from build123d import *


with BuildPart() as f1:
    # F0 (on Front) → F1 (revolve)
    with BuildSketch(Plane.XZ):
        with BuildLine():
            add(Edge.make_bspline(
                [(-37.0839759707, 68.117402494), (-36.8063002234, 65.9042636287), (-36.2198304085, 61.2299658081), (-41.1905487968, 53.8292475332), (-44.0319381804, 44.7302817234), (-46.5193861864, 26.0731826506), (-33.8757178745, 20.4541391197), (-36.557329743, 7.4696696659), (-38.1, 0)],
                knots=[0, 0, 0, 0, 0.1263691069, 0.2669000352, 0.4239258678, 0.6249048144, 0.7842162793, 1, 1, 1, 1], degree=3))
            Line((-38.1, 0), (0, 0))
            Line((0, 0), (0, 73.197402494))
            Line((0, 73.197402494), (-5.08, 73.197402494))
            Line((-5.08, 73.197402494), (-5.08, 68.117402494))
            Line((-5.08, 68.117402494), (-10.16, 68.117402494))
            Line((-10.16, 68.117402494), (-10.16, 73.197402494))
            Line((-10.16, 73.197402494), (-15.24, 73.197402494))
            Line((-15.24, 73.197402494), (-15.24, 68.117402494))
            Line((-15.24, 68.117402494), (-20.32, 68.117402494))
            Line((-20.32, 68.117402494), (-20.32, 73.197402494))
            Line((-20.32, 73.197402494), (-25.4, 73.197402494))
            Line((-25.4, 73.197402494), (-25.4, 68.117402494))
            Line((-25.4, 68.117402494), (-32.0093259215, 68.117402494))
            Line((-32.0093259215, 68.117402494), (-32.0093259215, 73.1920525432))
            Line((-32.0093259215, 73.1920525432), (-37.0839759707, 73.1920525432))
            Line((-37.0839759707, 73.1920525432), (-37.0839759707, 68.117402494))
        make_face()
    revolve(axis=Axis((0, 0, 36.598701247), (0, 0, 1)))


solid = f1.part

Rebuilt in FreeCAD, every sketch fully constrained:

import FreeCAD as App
import Part
import Sketcher
from FreeCAD import Vector
Q = App.Units.Quantity

doc = App.newDocument("Part")
body = doc.addObject("PartDesign::Body", "Body")

sketch1 = body.newObject("Sketcher::SketchObject", "Sketch")
sketch1.AttachmentSupport = (doc.getObject("XZ_Plane"), [""])
sketch1.MapMode = "FlatFace"
sketch1.addGeometry([
    Part.BSplineCurve([Vector(-37.083976, 68.117402, 0), Vector(-36.8063, 65.904264, 0), Vector(-36.21983, 61.229966, 0), Vector(-41.190549, 53.829248, 0), Vector(-44.031938, 44.730282, 0), Vector(-46.519386, 26.073183, 0), Vector(-33.875718, 20.454139, 0), Vector(-36.55733, 7.46967, 0), Vector(-38.1, 0, 0)], [4, 1, 1, 1, 1, 1, 4], [0, 0.126369107, 0.266900035, 0.423925868, 0.624904814, 0.784216279, 1], False, 3, [1, 1, 1, 1, 1, 1, 1, 1, 1], False),
    Part.LineSegment(Vector(-38.1, 0, 0), Vector(0, 0, 0)),
    Part.LineSegment(Vector(0, 0, 0), Vector(0, 73.197402, 0)),
    Part.LineSegment(Vector(0, 73.197402, 0), Vector(-5.08, 73.197402, 0)),
    Part.LineSegment(Vector(-5.08, 73.197402, 0), Vector(-5.08, 68.117402, 0)),
    Part.LineSegment(Vector(-5.08, 68.117402, 0), Vector(-10.16, 68.117402, 0)),
    Part.LineSegment(Vector(-10.16, 68.117402, 0), Vector(-10.16, 73.197402, 0)),
    Part.LineSegment(Vector(-10.16, 73.197402, 0), Vector(-15.24, 73.197402, 0)),
    Part.LineSegment(Vector(-15.24, 73.197402, 0), Vector(-15.24, 68.117402, 0)),
    Part.LineSegment(Vector(-15.24, 68.117402, 0), Vector(-20.32, 68.117402, 0)),
    Part.LineSegment(Vector(-20.32, 68.117402, 0), Vector(-20.32, 73.197402, 0)),
    Part.LineSegment(Vector(-20.32, 73.197402, 0), Vector(-25.4, 73.197402, 0)),
    Part.LineSegment(Vector(-25.4, 73.197402, 0), Vector(-25.4, 68.117402, 0)),
    Part.LineSegment(Vector(-25.4, 68.117402, 0), Vector(-32.009326, 68.117402, 0)),
    Part.LineSegment(Vector(-32.009326, 68.117402, 0), Vector(-32.009326, 73.192053, 0)),
    Part.LineSegment(Vector(-32.009326, 73.192053, 0), Vector(-37.083976, 73.192053, 0)),
    Part.LineSegment(Vector(-37.083976, 73.192053, 0), Vector(-37.083976, 68.117402, 0)),
], False)
sketch1.addConstraint([
    Sketcher.Constraint("Block", 0),
    Sketcher.Constraint("Coincident", 0, 2, 1, 1),
    Sketcher.Constraint("Coincident", 1, 2, 2, 1),
    Sketcher.Constraint("Coincident", 2, 2, 3, 1),
    Sketcher.Constraint("Coincident", 3, 2, 4, 1),
    Sketcher.Constraint("Coincident", 4, 2, 5, 1),
    Sketcher.Constraint("Coincident", 5, 2, 6, 1),
    Sketcher.Constraint("Coincident", 6, 2, 7, 1),
    Sketcher.Constraint("Coincident", 7, 2, 8, 1),
    Sketcher.Constraint("Coincident", 8, 2, 9, 1),
    Sketcher.Constraint("Coincident", 9, 2, 10, 1),
    Sketcher.Constraint("Coincident", 10, 2, 11, 1),
    Sketcher.Constraint("Coincident", 11, 2, 12, 1),
    Sketcher.Constraint("Coincident", 12, 2, 13, 1),
    Sketcher.Constraint("Coincident", 13, 2, 14, 1),
    Sketcher.Constraint("Coincident", 14, 2, 15, 1),
    Sketcher.Constraint("Coincident", 15, 2, 16, 1),
    Sketcher.Constraint("Coincident", 16, 2, 0, 1),
    Sketcher.Constraint("Horizontal", 1),
    Sketcher.Constraint("Vertical", 2),
    Sketcher.Constraint("Horizontal", 3),
    Sketcher.Constraint("Vertical", 4),
    Sketcher.Constraint("Horizontal", 5),
    Sketcher.Constraint("Vertical", 6),
    Sketcher.Constraint("Horizontal", 7),
    Sketcher.Constraint("Vertical", 8),
    Sketcher.Constraint("Horizontal", 9),
    Sketcher.Constraint("Vertical", 10),
    Sketcher.Constraint("Horizontal", 11),
    Sketcher.Constraint("Vertical", 12),
    Sketcher.Constraint("Horizontal", 13),
    Sketcher.Constraint("Vertical", 14),
    Sketcher.Constraint("Horizontal", 15),
    Sketcher.Constraint("Vertical", 16),
    Sketcher.Constraint("PointOnObject", 2, 2, -2),
    Sketcher.Constraint("Horizontal", 3, 2, 6, 2),
    Sketcher.Constraint("Horizontal", 5, 2, 8, 2),
    Sketcher.Constraint("Horizontal", 7, 2, 10, 2),
    Sketcher.Constraint("Horizontal", 9, 2, 12, 2),
    Sketcher.Constraint("Horizontal", 13, 2, 16, 2),
    Sketcher.Constraint("Equal", 3, 5),
    Sketcher.Constraint("Equal", 5, 7),
    Sketcher.Constraint("Equal", 7, 9),
    Sketcher.Constraint("Equal", 9, 11),
    Sketcher.Constraint("Equal", 11, 4),
    Sketcher.Constraint("Equal", 15, 14),
    Sketcher.Constraint("DistanceX", 3, 2, 3, 1, Q("0.2 in")),
    Sketcher.Constraint("DistanceX", 15, 2, 15, 1, 5.07465),
])
revolution = body.newObject("PartDesign::Revolution", "Revolution")
revolution.Profile = sketch1
revolution.ReferenceAxis = (sketch1, ["V_Axis"])
revolution.Angle = 360

doc.recompute()
